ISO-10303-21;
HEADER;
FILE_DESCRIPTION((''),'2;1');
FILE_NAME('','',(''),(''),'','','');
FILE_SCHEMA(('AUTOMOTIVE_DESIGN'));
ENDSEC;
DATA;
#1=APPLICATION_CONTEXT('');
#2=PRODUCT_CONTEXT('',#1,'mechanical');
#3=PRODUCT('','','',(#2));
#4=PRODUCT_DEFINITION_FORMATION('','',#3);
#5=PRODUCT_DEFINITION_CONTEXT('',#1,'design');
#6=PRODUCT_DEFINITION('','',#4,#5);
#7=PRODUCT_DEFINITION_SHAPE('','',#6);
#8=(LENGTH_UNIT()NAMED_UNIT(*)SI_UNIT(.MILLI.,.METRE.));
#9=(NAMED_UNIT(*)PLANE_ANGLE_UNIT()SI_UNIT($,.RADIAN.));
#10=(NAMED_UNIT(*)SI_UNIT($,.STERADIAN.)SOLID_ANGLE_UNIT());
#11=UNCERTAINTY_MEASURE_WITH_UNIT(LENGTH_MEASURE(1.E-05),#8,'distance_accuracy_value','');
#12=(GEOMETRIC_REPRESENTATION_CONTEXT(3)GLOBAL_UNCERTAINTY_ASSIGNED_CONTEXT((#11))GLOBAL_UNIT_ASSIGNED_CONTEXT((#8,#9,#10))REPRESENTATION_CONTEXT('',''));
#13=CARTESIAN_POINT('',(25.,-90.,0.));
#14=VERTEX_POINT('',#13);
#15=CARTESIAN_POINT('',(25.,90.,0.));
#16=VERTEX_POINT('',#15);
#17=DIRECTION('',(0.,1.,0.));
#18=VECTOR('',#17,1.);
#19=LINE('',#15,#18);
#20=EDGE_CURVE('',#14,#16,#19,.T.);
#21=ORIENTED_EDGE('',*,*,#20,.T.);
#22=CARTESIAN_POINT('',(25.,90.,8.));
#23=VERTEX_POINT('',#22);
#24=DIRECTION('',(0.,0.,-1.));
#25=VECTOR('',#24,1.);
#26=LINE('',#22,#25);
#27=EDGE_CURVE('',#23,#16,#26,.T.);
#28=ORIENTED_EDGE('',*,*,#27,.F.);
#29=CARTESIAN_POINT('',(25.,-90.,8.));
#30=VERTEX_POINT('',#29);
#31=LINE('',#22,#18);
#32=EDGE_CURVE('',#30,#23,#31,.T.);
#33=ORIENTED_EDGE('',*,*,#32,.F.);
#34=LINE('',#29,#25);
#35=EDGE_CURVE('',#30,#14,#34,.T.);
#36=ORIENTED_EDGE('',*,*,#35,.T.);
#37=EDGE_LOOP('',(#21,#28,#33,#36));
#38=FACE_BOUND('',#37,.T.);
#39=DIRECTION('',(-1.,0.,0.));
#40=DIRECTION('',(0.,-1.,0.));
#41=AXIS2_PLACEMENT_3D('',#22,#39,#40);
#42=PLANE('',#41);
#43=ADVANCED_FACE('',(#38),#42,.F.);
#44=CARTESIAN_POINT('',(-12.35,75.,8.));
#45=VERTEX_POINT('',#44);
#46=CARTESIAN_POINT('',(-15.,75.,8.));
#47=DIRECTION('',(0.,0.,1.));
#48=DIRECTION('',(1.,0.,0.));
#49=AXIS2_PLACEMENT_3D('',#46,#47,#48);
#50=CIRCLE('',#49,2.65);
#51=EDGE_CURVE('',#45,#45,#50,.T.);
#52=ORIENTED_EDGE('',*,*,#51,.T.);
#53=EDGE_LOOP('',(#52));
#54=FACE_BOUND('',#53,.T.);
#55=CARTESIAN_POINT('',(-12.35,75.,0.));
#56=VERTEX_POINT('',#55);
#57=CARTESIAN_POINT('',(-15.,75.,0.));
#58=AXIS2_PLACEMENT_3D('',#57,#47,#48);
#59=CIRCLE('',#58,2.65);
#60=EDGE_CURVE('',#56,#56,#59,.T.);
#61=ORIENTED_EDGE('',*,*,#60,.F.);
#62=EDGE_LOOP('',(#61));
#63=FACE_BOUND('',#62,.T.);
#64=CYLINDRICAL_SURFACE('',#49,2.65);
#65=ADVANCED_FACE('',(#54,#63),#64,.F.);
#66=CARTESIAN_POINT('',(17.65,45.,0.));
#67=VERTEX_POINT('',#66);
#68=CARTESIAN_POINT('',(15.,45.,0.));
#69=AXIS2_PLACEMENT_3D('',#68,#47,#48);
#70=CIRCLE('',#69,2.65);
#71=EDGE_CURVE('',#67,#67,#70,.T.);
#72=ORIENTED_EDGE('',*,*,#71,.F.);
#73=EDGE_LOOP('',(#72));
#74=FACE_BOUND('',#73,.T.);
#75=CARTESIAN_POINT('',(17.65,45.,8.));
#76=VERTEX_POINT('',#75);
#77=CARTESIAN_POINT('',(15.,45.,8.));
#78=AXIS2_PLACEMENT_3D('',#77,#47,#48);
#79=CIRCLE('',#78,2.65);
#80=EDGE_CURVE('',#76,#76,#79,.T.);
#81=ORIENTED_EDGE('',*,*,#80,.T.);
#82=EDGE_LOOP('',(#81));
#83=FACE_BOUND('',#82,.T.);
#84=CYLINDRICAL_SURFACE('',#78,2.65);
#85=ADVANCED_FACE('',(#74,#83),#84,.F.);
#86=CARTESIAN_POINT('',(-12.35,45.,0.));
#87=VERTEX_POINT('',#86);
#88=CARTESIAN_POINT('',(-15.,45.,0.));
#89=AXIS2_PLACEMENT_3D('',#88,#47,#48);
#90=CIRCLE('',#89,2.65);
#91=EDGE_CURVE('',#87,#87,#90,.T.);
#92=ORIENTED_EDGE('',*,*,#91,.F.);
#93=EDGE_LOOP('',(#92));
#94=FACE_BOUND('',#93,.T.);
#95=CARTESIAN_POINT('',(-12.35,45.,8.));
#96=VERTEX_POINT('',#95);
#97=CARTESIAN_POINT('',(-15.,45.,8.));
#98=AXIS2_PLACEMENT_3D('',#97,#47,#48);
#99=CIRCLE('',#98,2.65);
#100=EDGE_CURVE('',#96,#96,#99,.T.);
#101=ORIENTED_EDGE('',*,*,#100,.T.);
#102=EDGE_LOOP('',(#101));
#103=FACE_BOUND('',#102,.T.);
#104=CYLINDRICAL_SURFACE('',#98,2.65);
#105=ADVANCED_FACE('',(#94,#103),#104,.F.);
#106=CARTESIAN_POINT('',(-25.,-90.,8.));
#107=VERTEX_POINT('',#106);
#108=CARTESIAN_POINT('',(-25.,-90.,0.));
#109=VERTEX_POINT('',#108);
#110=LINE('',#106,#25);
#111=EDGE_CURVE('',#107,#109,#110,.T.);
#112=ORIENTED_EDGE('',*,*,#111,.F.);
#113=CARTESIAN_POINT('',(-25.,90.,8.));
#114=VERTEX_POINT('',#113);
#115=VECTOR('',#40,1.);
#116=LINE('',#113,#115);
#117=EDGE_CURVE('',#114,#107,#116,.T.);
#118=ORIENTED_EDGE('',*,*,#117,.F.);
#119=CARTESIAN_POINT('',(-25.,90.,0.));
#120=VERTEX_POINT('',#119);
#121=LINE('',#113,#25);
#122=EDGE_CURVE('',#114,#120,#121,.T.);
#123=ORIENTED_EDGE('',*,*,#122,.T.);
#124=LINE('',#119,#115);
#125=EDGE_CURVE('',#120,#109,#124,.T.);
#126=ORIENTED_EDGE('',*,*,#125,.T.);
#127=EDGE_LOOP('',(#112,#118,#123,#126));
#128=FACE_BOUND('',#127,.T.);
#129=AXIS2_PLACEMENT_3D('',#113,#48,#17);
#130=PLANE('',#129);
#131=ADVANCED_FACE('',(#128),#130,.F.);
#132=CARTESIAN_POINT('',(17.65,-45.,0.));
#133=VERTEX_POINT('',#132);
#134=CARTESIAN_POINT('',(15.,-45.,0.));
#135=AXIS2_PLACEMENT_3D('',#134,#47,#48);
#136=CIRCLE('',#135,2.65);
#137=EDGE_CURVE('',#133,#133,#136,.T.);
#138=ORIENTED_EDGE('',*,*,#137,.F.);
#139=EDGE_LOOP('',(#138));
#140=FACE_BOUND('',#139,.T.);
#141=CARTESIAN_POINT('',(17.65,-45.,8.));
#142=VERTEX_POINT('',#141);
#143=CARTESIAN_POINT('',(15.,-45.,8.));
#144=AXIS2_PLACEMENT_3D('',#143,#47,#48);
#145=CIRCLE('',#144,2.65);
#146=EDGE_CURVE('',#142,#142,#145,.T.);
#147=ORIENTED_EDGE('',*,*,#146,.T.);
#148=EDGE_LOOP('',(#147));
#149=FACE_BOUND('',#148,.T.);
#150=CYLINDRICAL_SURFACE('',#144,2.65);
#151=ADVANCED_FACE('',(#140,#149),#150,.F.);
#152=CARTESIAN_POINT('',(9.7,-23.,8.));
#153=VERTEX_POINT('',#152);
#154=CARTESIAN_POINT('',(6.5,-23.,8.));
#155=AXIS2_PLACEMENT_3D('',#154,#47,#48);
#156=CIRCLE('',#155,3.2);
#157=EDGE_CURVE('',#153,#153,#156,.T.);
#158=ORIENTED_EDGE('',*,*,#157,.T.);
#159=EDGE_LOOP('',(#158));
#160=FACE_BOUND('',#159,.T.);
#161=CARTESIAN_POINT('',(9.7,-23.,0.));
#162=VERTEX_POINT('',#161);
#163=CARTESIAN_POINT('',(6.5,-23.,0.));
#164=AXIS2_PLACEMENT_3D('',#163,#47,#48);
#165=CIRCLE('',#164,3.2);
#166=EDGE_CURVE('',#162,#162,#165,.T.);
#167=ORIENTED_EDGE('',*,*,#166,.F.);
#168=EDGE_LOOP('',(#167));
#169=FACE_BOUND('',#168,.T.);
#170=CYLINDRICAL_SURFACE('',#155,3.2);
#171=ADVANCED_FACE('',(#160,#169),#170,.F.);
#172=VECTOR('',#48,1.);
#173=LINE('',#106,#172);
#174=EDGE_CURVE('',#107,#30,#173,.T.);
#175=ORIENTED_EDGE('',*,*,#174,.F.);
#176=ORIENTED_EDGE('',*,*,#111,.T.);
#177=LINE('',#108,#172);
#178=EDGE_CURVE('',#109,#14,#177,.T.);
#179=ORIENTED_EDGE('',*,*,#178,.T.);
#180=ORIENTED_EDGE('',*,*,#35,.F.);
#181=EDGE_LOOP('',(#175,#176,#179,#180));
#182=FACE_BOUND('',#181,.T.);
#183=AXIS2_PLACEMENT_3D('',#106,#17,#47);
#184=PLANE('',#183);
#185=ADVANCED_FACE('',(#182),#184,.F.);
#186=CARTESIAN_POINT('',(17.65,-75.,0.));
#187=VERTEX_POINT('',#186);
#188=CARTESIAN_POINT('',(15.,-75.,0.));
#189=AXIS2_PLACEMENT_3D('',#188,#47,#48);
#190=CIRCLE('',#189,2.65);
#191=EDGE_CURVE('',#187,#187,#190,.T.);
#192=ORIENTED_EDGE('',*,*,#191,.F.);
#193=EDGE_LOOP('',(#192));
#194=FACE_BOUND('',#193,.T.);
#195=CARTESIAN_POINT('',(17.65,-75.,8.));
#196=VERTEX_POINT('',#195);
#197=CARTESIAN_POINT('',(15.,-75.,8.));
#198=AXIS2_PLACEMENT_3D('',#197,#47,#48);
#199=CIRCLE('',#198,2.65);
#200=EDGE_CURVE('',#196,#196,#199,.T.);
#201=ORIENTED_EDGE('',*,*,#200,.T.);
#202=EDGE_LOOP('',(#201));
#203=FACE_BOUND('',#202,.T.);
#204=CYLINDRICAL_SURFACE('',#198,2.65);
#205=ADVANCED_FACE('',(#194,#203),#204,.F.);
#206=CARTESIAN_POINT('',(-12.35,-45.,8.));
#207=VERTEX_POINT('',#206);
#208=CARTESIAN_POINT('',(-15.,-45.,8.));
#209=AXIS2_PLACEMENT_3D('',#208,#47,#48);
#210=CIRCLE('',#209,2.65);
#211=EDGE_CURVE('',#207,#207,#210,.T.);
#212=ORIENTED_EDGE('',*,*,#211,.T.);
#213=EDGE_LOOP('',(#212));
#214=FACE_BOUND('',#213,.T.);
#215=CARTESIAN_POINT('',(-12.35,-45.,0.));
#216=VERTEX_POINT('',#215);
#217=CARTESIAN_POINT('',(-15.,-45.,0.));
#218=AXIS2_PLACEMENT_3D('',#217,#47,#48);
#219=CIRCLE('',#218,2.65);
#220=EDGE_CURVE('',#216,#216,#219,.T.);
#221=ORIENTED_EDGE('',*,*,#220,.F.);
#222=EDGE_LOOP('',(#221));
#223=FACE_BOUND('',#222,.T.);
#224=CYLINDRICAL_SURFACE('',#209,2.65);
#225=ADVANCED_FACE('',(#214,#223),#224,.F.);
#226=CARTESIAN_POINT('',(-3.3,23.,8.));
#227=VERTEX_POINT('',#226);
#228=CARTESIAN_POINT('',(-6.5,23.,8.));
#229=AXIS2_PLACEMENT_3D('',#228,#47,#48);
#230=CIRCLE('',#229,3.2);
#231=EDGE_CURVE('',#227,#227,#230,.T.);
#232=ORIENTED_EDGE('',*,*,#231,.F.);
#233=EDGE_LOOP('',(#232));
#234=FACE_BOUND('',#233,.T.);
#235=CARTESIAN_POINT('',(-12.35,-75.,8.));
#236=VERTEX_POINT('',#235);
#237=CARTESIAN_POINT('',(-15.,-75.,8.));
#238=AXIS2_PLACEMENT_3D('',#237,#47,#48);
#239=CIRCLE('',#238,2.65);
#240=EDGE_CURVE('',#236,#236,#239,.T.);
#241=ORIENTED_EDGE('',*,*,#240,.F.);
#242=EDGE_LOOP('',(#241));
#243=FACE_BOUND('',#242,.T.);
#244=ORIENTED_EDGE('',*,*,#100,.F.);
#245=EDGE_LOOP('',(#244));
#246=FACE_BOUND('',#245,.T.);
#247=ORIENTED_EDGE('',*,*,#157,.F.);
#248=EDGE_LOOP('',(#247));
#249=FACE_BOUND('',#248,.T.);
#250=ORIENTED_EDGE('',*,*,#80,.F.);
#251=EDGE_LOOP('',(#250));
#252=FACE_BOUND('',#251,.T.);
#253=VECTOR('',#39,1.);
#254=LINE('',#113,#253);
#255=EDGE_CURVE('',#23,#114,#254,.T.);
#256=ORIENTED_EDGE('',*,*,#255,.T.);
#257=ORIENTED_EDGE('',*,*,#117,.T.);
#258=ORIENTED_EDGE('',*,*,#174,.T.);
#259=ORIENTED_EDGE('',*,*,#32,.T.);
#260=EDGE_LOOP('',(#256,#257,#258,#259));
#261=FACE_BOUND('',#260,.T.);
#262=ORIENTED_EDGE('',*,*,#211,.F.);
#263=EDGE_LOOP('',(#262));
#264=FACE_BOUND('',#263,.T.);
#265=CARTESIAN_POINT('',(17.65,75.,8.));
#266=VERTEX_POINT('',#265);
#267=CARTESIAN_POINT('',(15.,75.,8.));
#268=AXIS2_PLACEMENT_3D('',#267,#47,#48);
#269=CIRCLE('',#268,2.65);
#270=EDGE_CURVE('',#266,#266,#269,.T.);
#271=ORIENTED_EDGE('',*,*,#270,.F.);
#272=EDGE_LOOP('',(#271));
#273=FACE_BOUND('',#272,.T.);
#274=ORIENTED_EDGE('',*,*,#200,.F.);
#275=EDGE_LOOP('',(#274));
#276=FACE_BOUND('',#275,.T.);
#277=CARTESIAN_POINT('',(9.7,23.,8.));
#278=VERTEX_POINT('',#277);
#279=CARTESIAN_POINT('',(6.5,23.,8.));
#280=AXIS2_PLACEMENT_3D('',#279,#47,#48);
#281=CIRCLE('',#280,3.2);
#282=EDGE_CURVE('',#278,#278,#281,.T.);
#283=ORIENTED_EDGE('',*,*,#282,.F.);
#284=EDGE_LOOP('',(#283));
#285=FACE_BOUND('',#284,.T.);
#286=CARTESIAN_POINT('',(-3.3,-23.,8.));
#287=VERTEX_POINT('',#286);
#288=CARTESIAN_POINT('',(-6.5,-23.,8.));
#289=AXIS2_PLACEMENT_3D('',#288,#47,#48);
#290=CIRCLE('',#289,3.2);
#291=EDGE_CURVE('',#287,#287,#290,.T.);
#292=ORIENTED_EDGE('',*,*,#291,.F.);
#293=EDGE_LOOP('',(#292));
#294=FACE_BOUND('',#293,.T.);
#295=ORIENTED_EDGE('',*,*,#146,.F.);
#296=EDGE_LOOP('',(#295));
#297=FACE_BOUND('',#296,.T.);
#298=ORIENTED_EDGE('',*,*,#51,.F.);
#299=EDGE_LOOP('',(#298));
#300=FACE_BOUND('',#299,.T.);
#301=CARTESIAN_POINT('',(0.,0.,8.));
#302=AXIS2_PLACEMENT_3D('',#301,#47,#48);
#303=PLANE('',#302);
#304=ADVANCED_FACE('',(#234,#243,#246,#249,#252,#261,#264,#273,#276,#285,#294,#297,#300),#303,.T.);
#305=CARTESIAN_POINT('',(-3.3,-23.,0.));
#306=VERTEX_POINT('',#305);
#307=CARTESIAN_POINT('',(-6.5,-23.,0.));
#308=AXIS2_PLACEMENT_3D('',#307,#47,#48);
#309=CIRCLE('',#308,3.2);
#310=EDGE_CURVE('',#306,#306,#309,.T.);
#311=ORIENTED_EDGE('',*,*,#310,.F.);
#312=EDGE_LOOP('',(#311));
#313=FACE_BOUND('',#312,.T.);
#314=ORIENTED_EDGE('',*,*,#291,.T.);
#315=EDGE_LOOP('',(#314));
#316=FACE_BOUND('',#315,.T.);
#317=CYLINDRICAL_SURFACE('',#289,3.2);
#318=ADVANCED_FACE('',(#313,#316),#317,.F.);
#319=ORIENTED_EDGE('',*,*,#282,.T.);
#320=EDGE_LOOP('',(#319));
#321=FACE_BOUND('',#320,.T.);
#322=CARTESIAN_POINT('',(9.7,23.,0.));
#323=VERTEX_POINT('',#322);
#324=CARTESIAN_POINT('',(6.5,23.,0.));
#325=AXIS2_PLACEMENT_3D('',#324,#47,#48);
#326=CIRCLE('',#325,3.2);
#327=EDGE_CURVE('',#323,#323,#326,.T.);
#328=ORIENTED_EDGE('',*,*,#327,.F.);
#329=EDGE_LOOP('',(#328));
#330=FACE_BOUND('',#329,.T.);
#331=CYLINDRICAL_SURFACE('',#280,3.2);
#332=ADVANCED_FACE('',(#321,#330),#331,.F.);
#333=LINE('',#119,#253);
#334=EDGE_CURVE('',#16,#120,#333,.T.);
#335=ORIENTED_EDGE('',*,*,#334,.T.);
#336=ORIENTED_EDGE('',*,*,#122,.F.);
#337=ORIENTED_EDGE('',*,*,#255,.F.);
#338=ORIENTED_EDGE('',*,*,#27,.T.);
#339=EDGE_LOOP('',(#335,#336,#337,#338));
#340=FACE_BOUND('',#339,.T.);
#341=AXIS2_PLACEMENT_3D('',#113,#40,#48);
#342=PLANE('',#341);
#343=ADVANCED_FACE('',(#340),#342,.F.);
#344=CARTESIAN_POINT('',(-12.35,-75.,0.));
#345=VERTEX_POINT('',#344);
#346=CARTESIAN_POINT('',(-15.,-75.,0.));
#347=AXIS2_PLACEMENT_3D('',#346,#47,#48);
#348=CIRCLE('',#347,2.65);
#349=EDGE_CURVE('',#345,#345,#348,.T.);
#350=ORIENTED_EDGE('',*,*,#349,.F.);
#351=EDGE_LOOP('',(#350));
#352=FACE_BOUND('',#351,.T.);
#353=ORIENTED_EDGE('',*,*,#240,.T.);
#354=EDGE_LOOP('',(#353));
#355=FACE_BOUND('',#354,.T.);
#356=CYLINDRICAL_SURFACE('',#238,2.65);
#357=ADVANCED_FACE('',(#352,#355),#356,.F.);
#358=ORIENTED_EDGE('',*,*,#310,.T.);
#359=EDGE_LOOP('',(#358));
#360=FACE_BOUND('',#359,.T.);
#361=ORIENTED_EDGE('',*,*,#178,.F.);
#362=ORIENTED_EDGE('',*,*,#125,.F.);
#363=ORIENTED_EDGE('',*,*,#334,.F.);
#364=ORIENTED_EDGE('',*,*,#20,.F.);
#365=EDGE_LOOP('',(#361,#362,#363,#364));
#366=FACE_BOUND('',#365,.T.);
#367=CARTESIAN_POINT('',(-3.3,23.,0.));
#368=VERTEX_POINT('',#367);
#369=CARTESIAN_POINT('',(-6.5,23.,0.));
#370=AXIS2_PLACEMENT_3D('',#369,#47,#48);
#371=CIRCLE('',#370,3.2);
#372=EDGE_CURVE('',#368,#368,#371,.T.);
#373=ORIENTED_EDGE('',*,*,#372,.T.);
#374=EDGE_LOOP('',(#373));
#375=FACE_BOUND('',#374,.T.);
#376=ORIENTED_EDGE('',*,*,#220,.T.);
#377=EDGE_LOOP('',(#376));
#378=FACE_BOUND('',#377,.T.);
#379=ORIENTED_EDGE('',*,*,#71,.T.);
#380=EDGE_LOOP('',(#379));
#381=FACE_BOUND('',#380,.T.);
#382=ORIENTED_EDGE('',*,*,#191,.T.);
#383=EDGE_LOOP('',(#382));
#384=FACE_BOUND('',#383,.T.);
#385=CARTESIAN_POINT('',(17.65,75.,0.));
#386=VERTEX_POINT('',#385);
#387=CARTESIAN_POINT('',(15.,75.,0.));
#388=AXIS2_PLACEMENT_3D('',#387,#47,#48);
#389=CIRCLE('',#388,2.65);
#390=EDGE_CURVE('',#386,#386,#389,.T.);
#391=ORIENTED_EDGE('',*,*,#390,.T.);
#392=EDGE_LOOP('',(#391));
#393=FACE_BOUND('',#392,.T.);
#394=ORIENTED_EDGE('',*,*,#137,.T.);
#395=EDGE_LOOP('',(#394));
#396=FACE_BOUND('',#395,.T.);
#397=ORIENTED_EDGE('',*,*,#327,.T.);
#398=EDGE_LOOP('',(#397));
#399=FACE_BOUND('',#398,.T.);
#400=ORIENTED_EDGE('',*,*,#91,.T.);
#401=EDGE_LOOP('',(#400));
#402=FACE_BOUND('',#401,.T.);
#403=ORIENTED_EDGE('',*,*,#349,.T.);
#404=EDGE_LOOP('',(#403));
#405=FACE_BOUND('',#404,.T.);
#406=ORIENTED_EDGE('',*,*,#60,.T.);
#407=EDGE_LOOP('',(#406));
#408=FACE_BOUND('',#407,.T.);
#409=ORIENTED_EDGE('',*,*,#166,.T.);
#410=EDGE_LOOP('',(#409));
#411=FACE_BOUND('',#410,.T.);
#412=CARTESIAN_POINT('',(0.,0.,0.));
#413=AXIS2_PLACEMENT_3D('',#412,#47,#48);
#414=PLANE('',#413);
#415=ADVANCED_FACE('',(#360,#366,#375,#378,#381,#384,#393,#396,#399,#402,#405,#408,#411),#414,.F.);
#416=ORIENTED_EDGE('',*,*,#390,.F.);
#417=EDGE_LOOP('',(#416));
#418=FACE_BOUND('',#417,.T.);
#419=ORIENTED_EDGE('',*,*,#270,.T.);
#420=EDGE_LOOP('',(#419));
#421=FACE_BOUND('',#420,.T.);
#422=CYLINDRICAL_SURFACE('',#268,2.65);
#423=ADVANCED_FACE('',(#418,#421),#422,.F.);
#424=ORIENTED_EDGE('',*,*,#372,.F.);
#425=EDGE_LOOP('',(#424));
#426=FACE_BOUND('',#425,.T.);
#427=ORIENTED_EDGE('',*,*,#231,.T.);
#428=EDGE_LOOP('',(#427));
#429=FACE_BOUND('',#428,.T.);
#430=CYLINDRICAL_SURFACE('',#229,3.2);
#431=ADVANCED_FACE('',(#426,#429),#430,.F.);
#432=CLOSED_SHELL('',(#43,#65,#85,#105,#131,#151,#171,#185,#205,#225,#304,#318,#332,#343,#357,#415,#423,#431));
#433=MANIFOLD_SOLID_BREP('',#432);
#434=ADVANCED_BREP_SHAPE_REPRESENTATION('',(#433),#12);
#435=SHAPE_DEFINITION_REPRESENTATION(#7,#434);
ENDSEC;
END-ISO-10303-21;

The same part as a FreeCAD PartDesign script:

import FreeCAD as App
import Part
import Sketcher
from FreeCAD import Vector
Q = App.Units.Quantity

doc = App.newDocument("Part")
body = doc.addObject("PartDesign::Body", "Body")

# Sketch on XY plane
sketch1 = body.newObject("Sketcher::SketchObject", "Sketch")
sketch1.AttachmentSupport = (doc.getObject("XY_Plane"), [""])
sketch1.MapMode = "FlatFace"
sketch1.addGeometry([
    Part.LineSegment(Vector(-25, 90, 0), Vector(-25, -90, 0)),
    Part.LineSegment(Vector(-25, -90, 0), Vector(25, -90, 0)),
    Part.LineSegment(Vector(25, -90, 0), Vector(25, 90, 0)),
    Part.LineSegment(Vector(25, 90, 0), Vector(-25, 90, 0)),
], False)
sketch1.addConstraint([
    Sketcher.Constraint("Coincident", 0, 2, 1, 1),
    Sketcher.Constraint("Coincident", 1, 2, 2, 1),
    Sketcher.Constraint("Coincident", 2, 2, 3, 1),
    Sketcher.Constraint("Coincident", 3, 2, 0, 1),
    Sketcher.Constraint("Vertical", 0),
    Sketcher.Constraint("Horizontal", 1),
    Sketcher.Constraint("Vertical", 2),
    Sketcher.Constraint("Horizontal", 3),
    Sketcher.Constraint("Symmetric", 0, 2, 2, 2, -1, 1),
    Sketcher.Constraint("DistanceX", 1, 1, 1, 2, Q("50 mm")),
    Sketcher.Constraint("DistanceY", 0, 2, 0, 1, Q("180 mm")),
])
pad1 = body.newObject("PartDesign::Pad", "Pad")
pad1.Profile = sketch1
pad1.Length = 8

# Sketch on XY plane
sketch2 = body.newObject("Sketcher::SketchObject", "Sketch001")
sketch2.AttachmentSupport = (doc.getObject("XY_Plane"), [""])
sketch2.MapMode = "FlatFace"
sketch2.AttachmentOffset = App.Placement(Vector(0, 0, 8), App.Rotation())
sketch2.addGeometry([
    Part.Circle(Vector(-15, 45, 0), Vector(0, 0, 1), 2.6),  # 0
    Part.Circle(Vector(-15, -45, 0), Vector(0, 0, 1), 2.6),  # 1
    Part.Circle(Vector(15, -45, 0), Vector(0, 0, 1), 2.6),  # 2
    Part.Circle(Vector(15, 45, 0), Vector(0, 0, 1), 2.6),  # 3
    Part.Circle(Vector(-15, 75, 0), Vector(0, 0, 1), 2.6),  # 4
    Part.Circle(Vector(-15, -75, 0), Vector(0, 0, 1), 2.6),  # 5
    Part.Circle(Vector(15, -75, 0), Vector(0, 0, 1), 2.6),  # 6
    Part.Circle(Vector(15, 75, 0), Vector(0, 0, 1), 2.6),  # 7
], False)
sketch2.addConstraint([
    Sketcher.Constraint("Equal", 0, 1),
    Sketcher.Constraint("Equal", 1, 2),
    Sketcher.Constraint("Equal", 2, 3),
    Sketcher.Constraint("Equal", 3, 4),
    Sketcher.Constraint("Equal", 4, 5),
    Sketcher.Constraint("Equal", 5, 6),
    Sketcher.Constraint("Equal", 6, 7),
    Sketcher.Constraint("Symmetric", 0, 3, 2, 3, -1, 1),
    Sketcher.Constraint("Symmetric", 1, 3, 3, 3, -1, 1),
    Sketcher.Constraint("Symmetric", 4, 3, 6, 3, -1, 1),
    Sketcher.Constraint("Symmetric", 5, 3, 7, 3, -1, 1),
    Sketcher.Constraint("Symmetric", 1, 3, 2, 3, -2),
    Sketcher.Constraint("Symmetric", 5, 3, 6, 3, -2),
    Sketcher.Constraint("Vertical", 1, 3, 4, 3),
    Sketcher.Constraint("Diameter", 0, Q("5.3 mm")),
    Sketcher.Constraint("DistanceX", 0, 3, -1, 1, Q("15 mm")),
    Sketcher.Constraint("DistanceY", -1, 1, 0, 3, Q("45 mm")),
    Sketcher.Constraint("DistanceY", -1, 1, 4, 3, Q("75 mm")),
])
doc.recompute()
hole = body.newObject("PartDesign::Hole", "Hole")
hole.Profile = sketch2
hole.ThreadType = "None"
hole.Diameter = 5.3
hole.DepthType = "ThroughAll"

# Sketch on XY plane
sketch3 = body.newObject("Sketcher::SketchObject", "Sketch002")
sketch3.AttachmentSupport = (doc.getObject("XY_Plane"), [""])
sketch3.MapMode = "FlatFace"
sketch3.AttachmentOffset = App.Placement(Vector(0, 0, 8), App.Rotation())
sketch3.addGeometry([
    Part.Circle(Vector(-6.5, 23, 0), Vector(0, 0, 1), 3.2),
    Part.Circle(Vector(-6.5, -23, 0), Vector(0, 0, 1), 3.2),
    Part.Circle(Vector(6.5, -23, 0), Vector(0, 0, 1), 3.2),
    Part.Circle(Vector(6.5, 23, 0), Vector(0, 0, 1), 3.2),
], False)
sketch3.addConstraint([
    Sketcher.Constraint("Equal", 0, 1),
    Sketcher.Constraint("Equal", 1, 2),
    Sketcher.Constraint("Equal", 2, 3),
    Sketcher.Constraint("Symmetric", 0, 3, 2, 3, -1, 1),
    Sketcher.Constraint("Symmetric", 1, 3, 3, 3, -1, 1),
    Sketcher.Constraint("Symmetric", 1, 3, 2, 3, -2),
    Sketcher.Constraint("Diameter", 0, Q("6.4 mm")),
    Sketcher.Constraint("DistanceY", -1, 1, 0, 3, Q("23 mm")),
    Sketcher.Constraint("DistanceX", 1, 3, 2, 3, Q("13 mm")),
])
doc.recompute()
hole2 = body.newObject("PartDesign::Hole", "Hole001")
hole2.Profile = sketch3
hole2.ThreadType = "None"
hole2.Diameter = 6.4
hole2.DepthType = "ThroughAll"

doc.recompute()
